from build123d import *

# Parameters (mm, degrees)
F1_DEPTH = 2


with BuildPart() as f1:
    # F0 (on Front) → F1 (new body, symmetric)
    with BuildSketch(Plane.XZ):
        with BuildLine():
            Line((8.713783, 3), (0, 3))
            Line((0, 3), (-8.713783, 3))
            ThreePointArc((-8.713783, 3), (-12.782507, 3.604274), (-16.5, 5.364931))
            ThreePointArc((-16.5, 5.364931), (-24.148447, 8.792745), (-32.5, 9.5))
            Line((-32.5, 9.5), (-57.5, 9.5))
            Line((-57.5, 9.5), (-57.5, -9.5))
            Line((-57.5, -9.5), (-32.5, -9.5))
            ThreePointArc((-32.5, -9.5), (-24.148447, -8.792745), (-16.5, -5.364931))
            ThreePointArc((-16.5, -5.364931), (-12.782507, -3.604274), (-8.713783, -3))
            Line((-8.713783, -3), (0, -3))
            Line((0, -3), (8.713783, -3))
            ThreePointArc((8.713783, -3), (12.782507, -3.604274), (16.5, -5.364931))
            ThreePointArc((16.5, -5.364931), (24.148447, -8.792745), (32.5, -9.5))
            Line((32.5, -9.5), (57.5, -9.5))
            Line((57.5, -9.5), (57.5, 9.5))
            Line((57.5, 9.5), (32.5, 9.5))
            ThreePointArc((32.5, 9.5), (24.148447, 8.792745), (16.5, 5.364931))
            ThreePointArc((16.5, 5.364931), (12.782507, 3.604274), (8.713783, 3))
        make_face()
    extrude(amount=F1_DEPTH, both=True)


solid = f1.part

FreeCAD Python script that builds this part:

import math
import FreeCAD as App
import Part
import Sketcher
from FreeCAD import Vector

doc = App.newDocument("Part")
body = doc.addObject("PartDesign::Body", "Body")

# Sketch on XZ plane
sketch1 = doc.addObject("Sketcher::SketchObject", "Sketch")
body.addObject(sketch1)
sketch1.AttachmentSupport = (doc.XZ_Plane, [""])
sketch1.MapMode = "FlatFace"
sketch1.addGeometry([
    Part.LineSegment(Vector(9, 3, 0), Vector(-9, 3, 0)),  # 0
    Part.ArcOfCircle(Part.Circle(Vector(-9, 17, 0), Vector(0, 0, 1), 14), math.radians(-124), math.radians(-90)),  # 1
    Part.ArcOfCircle(Part.Circle(Vector(-30, -15, 0), Vector(0, 0, 1), 25), math.radians(56), math.radians(95)),  # 2
    Part.LineSegment(Vector(-32, 10, 0), Vector(-58, 10, 0)),  # 3
    Part.LineSegment(Vector(-58, 10, 0), Vector(-58, -10, 0)),  # 4
    Part.LineSegment(Vector(-58, -10, 0), Vector(-32, -10, 0)),  # 5
    Part.ArcOfCircle(Part.Circle(Vector(-30, 15, 0), Vector(0, 0, 1), 25), math.radians(-95), math.radians(-56)),  # 6
    Part.ArcOfCircle(Part.Circle(Vector(-9, -17, 0), Vector(0, 0, 1), 14), math.radians(90), math.radians(124)),  # 7
    Part.LineSegment(Vector(-9, -3, 0), Vector(9, -3, 0)),  # 8
    Part.ArcOfCircle(Part.Circle(Vector(9, -17, 0), Vector(0, 0, 1), 14), math.radians(56), math.radians(90)),  # 9
    Part.ArcOfCircle(Part.Circle(Vector(30, 15, 0), Vector(0, 0, 1), 25), math.radians(-124), math.radians(-85)),  # 10
    Part.LineSegment(Vector(32, -10, 0), Vector(58, -10, 0)),  # 11
    Part.LineSegment(Vector(58, -10, 0), Vector(58, 10, 0)),  # 12
    Part.LineSegment(Vector(58, 10, 0), Vector(32, 10, 0)),  # 13
    Part.ArcOfCircle(Part.Circle(Vector(30, -15, 0), Vector(0, 0, 1), 25), math.radians(85), math.radians(124)),  # 14
    Part.ArcOfCircle(Part.Circle(Vector(9, 17, 0), Vector(0, 0, 1), 14), math.radians(-90), math.radians(-56)),  # 15
], False)
sketch1.addConstraint([
    Sketcher.Constraint("Tangent", 0, 2, 1, 2),
    Sketcher.Constraint("Tangent", 1, 1, 2, 1),
    Sketcher.Constraint("Coincident", 2, 2, 3, 1),
    Sketcher.Constraint("Coincident", 3, 2, 4, 1),
    Sketcher.Constraint("Coincident", 4, 2, 5, 1),
    Sketcher.Constraint("Coincident", 5, 2, 6, 1),
    Sketcher.Constraint("Tangent", 6, 2, 7, 2),
    Sketcher.Constraint("Tangent", 7, 1, 8, 1),
    Sketcher.Constraint("Tangent", 8, 2, 9, 2),
    Sketcher.Constraint("Tangent", 9, 1, 10, 1),
    Sketcher.Constraint("Coincident", 10, 2, 11, 1),
    Sketcher.Constraint("Coincident", 11, 2, 12, 1),
    Sketcher.Constraint("Coincident", 12, 2, 13, 1),
    Sketcher.Constraint("Coincident", 13, 2, 14, 1),
    Sketcher.Constraint("Tangent", 14, 2, 15, 2),
    Sketcher.Constraint("Tangent", 15, 1, 0, 1),
    Sketcher.Constraint("Horizontal", 0),
    Sketcher.Constraint("Horizontal", 3),
    Sketcher.Constraint("Vertical", 4),
    Sketcher.Constraint("Horizontal", 5),
    Sketcher.Constraint("Horizontal", 8),
    Sketcher.Constraint("Horizontal", 11),
    Sketcher.Constraint("Vertical", 12),
    Sketcher.Constraint("Horizontal", 13),
    Sketcher.Constraint("Equal", 2, 6),
    Sketcher.Constraint("Equal", 1, 7),
    Sketcher.Constraint("Equal", 7, 9),
    Sketcher.Constraint("Equal", 6, 10),
    Sketcher.Constraint("Equal", 10, 14),
    Sketcher.Constraint("Equal", 9, 15),
    Sketcher.Constraint("Symmetric", 1, 3, 9, 3, -1, 1),
    Sketcher.Constraint("Symmetric", 6, 3, 14, 3, -1, 1),
    Sketcher.Constraint("Symmetric", 2, 2, 10, 2, -1, 1),
    Sketcher.Constraint("Symmetric", 4, 2, 12, 2, -1, 1),
    Sketcher.Constraint("Symmetric", 6, 3, 10, 3, -2),
    Sketcher.Constraint("Horizontal", 5, 2, 10, 2),
    Sketcher.Constraint("DistanceX", 3, 2, 3, 1, 25.0),
    Sketcher.Constraint("DistanceY", 4, 2, 4, 1, 19.0),
    Sketcher.Constraint("DistanceY", -1, 1, 0, 2, 3.0),
    Sketcher.Constraint("DistanceX", 2, 2, 1, 1, 16.0),
    Sketcher.Constraint("DistanceX", 1, 1, -1, 1, 16.5),
    Sketcher.Constraint("Radius", 1, 14.00001),
    Sketcher.Constraint("Radius", 2, 24.999995),
])
pad1 = doc.addObject("PartDesign::Pad", "Pad")
body.addObject(pad1)
pad1.Profile = sketch1
pad1.Length = 4
pad1.Midplane = True

doc.recompute()
